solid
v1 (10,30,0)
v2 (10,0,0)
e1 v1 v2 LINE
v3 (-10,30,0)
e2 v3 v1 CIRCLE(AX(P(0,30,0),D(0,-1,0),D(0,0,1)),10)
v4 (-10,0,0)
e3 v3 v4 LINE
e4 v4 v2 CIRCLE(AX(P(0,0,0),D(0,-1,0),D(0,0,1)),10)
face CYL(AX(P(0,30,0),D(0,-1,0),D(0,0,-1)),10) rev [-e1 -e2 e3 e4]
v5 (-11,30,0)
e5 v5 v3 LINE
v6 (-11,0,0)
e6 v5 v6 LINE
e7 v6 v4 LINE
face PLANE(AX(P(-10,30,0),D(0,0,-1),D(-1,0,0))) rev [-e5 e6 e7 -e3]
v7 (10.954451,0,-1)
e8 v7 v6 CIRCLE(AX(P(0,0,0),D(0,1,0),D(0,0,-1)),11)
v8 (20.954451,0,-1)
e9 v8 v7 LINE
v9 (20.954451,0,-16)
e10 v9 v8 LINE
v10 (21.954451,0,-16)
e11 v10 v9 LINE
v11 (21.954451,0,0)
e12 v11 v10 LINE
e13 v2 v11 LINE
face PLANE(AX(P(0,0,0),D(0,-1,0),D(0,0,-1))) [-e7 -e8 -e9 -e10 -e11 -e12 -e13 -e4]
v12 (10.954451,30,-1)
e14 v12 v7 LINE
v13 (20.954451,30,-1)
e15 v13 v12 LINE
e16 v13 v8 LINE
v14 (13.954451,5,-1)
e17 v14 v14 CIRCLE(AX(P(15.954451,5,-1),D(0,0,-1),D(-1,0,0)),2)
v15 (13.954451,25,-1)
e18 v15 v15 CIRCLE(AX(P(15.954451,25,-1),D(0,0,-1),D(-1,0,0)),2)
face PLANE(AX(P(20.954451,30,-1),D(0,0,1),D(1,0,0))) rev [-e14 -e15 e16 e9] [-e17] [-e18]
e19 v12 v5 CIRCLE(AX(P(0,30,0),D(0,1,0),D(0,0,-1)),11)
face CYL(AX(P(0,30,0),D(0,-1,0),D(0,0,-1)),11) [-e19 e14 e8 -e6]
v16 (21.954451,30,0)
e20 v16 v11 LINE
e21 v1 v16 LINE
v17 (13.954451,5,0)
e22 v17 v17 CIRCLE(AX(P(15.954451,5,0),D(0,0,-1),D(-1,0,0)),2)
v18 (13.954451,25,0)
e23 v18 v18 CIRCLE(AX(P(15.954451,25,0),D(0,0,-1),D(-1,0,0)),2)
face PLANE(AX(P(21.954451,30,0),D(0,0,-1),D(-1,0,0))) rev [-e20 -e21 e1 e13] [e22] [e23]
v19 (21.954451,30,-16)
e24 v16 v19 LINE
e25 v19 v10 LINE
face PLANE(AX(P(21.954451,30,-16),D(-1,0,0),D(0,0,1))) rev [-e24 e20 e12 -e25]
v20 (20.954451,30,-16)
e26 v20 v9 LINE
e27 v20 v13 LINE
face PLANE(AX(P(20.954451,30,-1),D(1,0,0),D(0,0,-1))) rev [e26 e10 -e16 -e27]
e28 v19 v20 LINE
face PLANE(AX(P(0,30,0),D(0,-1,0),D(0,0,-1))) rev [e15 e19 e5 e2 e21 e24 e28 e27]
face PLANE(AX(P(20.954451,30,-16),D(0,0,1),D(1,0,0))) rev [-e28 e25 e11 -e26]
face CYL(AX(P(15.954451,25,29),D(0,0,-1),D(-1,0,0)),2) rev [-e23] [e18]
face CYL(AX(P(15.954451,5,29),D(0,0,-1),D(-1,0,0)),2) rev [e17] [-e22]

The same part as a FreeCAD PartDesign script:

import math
import FreeCAD as App
import Part
import Sketcher
from FreeCAD import Vector
Q = App.Units.Quantity

doc = App.newDocument("Part")
body = doc.addObject("PartDesign::Body", "Body")

# Sketch on XZ plane
sketch1 = doc.addObject("Sketcher::SketchObject", "Sketch")
body.addObject(sketch1)
sketch1.AttachmentSupport = (doc.XZ_Plane, [""])
sketch1.MapMode = "FlatFace"
sketch1.addGeometry(Part.LineSegment(Vector(10, 0, 0), Vector(22, 0, 0)), False)
sketch1.addGeometry(Part.LineSegment(Vector(22, 0, 0), Vector(22, -16, 0)), False)
sketch1.addGeometry(Part.LineSegment(Vector(22, -16, 0), Vector(21, -16, 0)), False)
sketch1.addGeometry(Part.LineSegment(Vector(21, -16, 0), Vector(21, -1, 0)), False)
sketch1.addGeometry(Part.LineSegment(Vector(21, -1, 0), Vector(11, -1, 0)), False)
sketch1.addGeometry(Part.ArcOfCircle(Part.Circle(Vector(0, 0, 0), Vector(0, 0, 1), 11), math.radians(180), math.radians(355)), False)
sketch1.addGeometry(Part.LineSegment(Vector(-11, 0, 0), Vector(-10, 0, 0)), False)
sketch1.addGeometry(Part.ArcOfCircle(Part.Circle(Vector(0, 0, 0), Vector(0, 0, 1), 10), math.radians(180), math.radians(360)), False)
sketch1.addConstraint(Sketcher.Constraint("Coincident", 0, 2, 1, 1))
sketch1.addConstraint(Sketcher.Constraint("Coincident", 1, 2, 2, 1))
sketch1.addConstraint(Sketcher.Constraint("Coincident", 2, 2, 3, 1))
sketch1.addConstraint(Sketcher.Constraint("Coincident", 3, 2, 4, 1))
sketch1.addConstraint(Sketcher.Constraint("Coincident", 4, 2, 5, 2))
sketch1.addConstraint(Sketcher.Constraint("Coincident", 5, 1, 6, 1))
sketch1.addConstraint(Sketcher.Constraint("Coincident", 6, 2, 7, 1))
sketch1.addConstraint(Sketcher.Constraint("Coincident", 7, 2, 0, 1))
sketch1.addConstraint(Sketcher.Constraint("Horizontal", 0))
sketch1.addConstraint(Sketcher.Constraint("Vertical", 1))
sketch1.addConstraint(Sketcher.Constraint("Horizontal", 2))
sketch1.addConstraint(Sketcher.Constraint("Vertical", 3))
sketch1.addConstraint(Sketcher.Constraint("Horizontal", 4))
sketch1.addConstraint(Sketcher.Constraint("Horizontal", 6))
sketch1.addConstraint(Sketcher.Constraint("Coincident", 5, 3, -1, 1))
sketch1.addConstraint(Sketcher.Constraint("Coincident", 7, 3, -1, 1))
sketch1.addConstraint(Sketcher.Constraint("PointOnObject", 0, 2, -1))
sketch1.addConstraint(Sketcher.Constraint("PointOnObject", 5, 1, -1))
sketch1.addConstraint(Sketcher.Constraint("Equal", 2, 6))
sketch1.addConstraint(Sketcher.Constraint("Radius", 5, Q("11 mm")))
sketch1.addConstraint(Sketcher.Constraint("Radius", 7, Q("10 mm")))
sketch1.addConstraint(Sketcher.Constraint("DistanceX", 4, 2, 4, 1, Q("10 mm")))
sketch1.addConstraint(Sketcher.Constraint("DistanceY", 1, 2, 1, 1, Q("16 mm")))
sketch1.addConstraint(Sketcher.Constraint("DistanceY", 3, 1, 3, 2, Q("15 mm")))
pad1 = doc.addObject("PartDesign::Pad", "Pad")
body.addObject(pad1)
pad1.Profile = sketch1
pad1.Length = 30
pad1.Reversed = True

# Sketch on XY plane
sketch2 = doc.addObject("Sketcher::SketchObject", "Sketch001")
body.addObject(sketch2)
sketch2.AttachmentSupport = (doc.XY_Plane, [""])
sketch2.MapMode = "FlatFace"
sketch2.AttachmentOffset = App.Placement(Vector(0, 0, -1), App.Rotation())
sketch2.addGeometry(Part.Circle(Vector(16, 25, 0), Vector(0, 0, 1), 2), False)
sketch2.addGeometry(Part.Circle(Vector(16, 5, 0), Vector(0, 0, 1), 2), False)
sketch2.addConstraint(Sketcher.Constraint("Equal", 0, 1))
sketch2.addConstraint(Sketcher.Constraint("Vertical", 0, 3, 1, 3))
sketch2.addConstraint(Sketcher.Constraint("Diameter", 0, Q("4 mm")))
sketch2.addConstraint(Sketcher.Constraint("DistanceY", -1, 1, 0, 3, Q("25 mm")))
sketch2.addConstraint(Sketcher.Constraint("DistanceY", -1, 1, 1, 3, Q("5 mm")))
sketch2.addConstraint(Sketcher.Constraint("DistanceX", -1, 1, 0, 3, Q("15.954451 mm")))
pocket1 = doc.addObject("PartDesign::Pocket", "Pocket")
body.addObject(pocket1)
pocket1.Profile = sketch2
pocket1.Length = 30
pocket1.Reversed = True

doc.recompute()
